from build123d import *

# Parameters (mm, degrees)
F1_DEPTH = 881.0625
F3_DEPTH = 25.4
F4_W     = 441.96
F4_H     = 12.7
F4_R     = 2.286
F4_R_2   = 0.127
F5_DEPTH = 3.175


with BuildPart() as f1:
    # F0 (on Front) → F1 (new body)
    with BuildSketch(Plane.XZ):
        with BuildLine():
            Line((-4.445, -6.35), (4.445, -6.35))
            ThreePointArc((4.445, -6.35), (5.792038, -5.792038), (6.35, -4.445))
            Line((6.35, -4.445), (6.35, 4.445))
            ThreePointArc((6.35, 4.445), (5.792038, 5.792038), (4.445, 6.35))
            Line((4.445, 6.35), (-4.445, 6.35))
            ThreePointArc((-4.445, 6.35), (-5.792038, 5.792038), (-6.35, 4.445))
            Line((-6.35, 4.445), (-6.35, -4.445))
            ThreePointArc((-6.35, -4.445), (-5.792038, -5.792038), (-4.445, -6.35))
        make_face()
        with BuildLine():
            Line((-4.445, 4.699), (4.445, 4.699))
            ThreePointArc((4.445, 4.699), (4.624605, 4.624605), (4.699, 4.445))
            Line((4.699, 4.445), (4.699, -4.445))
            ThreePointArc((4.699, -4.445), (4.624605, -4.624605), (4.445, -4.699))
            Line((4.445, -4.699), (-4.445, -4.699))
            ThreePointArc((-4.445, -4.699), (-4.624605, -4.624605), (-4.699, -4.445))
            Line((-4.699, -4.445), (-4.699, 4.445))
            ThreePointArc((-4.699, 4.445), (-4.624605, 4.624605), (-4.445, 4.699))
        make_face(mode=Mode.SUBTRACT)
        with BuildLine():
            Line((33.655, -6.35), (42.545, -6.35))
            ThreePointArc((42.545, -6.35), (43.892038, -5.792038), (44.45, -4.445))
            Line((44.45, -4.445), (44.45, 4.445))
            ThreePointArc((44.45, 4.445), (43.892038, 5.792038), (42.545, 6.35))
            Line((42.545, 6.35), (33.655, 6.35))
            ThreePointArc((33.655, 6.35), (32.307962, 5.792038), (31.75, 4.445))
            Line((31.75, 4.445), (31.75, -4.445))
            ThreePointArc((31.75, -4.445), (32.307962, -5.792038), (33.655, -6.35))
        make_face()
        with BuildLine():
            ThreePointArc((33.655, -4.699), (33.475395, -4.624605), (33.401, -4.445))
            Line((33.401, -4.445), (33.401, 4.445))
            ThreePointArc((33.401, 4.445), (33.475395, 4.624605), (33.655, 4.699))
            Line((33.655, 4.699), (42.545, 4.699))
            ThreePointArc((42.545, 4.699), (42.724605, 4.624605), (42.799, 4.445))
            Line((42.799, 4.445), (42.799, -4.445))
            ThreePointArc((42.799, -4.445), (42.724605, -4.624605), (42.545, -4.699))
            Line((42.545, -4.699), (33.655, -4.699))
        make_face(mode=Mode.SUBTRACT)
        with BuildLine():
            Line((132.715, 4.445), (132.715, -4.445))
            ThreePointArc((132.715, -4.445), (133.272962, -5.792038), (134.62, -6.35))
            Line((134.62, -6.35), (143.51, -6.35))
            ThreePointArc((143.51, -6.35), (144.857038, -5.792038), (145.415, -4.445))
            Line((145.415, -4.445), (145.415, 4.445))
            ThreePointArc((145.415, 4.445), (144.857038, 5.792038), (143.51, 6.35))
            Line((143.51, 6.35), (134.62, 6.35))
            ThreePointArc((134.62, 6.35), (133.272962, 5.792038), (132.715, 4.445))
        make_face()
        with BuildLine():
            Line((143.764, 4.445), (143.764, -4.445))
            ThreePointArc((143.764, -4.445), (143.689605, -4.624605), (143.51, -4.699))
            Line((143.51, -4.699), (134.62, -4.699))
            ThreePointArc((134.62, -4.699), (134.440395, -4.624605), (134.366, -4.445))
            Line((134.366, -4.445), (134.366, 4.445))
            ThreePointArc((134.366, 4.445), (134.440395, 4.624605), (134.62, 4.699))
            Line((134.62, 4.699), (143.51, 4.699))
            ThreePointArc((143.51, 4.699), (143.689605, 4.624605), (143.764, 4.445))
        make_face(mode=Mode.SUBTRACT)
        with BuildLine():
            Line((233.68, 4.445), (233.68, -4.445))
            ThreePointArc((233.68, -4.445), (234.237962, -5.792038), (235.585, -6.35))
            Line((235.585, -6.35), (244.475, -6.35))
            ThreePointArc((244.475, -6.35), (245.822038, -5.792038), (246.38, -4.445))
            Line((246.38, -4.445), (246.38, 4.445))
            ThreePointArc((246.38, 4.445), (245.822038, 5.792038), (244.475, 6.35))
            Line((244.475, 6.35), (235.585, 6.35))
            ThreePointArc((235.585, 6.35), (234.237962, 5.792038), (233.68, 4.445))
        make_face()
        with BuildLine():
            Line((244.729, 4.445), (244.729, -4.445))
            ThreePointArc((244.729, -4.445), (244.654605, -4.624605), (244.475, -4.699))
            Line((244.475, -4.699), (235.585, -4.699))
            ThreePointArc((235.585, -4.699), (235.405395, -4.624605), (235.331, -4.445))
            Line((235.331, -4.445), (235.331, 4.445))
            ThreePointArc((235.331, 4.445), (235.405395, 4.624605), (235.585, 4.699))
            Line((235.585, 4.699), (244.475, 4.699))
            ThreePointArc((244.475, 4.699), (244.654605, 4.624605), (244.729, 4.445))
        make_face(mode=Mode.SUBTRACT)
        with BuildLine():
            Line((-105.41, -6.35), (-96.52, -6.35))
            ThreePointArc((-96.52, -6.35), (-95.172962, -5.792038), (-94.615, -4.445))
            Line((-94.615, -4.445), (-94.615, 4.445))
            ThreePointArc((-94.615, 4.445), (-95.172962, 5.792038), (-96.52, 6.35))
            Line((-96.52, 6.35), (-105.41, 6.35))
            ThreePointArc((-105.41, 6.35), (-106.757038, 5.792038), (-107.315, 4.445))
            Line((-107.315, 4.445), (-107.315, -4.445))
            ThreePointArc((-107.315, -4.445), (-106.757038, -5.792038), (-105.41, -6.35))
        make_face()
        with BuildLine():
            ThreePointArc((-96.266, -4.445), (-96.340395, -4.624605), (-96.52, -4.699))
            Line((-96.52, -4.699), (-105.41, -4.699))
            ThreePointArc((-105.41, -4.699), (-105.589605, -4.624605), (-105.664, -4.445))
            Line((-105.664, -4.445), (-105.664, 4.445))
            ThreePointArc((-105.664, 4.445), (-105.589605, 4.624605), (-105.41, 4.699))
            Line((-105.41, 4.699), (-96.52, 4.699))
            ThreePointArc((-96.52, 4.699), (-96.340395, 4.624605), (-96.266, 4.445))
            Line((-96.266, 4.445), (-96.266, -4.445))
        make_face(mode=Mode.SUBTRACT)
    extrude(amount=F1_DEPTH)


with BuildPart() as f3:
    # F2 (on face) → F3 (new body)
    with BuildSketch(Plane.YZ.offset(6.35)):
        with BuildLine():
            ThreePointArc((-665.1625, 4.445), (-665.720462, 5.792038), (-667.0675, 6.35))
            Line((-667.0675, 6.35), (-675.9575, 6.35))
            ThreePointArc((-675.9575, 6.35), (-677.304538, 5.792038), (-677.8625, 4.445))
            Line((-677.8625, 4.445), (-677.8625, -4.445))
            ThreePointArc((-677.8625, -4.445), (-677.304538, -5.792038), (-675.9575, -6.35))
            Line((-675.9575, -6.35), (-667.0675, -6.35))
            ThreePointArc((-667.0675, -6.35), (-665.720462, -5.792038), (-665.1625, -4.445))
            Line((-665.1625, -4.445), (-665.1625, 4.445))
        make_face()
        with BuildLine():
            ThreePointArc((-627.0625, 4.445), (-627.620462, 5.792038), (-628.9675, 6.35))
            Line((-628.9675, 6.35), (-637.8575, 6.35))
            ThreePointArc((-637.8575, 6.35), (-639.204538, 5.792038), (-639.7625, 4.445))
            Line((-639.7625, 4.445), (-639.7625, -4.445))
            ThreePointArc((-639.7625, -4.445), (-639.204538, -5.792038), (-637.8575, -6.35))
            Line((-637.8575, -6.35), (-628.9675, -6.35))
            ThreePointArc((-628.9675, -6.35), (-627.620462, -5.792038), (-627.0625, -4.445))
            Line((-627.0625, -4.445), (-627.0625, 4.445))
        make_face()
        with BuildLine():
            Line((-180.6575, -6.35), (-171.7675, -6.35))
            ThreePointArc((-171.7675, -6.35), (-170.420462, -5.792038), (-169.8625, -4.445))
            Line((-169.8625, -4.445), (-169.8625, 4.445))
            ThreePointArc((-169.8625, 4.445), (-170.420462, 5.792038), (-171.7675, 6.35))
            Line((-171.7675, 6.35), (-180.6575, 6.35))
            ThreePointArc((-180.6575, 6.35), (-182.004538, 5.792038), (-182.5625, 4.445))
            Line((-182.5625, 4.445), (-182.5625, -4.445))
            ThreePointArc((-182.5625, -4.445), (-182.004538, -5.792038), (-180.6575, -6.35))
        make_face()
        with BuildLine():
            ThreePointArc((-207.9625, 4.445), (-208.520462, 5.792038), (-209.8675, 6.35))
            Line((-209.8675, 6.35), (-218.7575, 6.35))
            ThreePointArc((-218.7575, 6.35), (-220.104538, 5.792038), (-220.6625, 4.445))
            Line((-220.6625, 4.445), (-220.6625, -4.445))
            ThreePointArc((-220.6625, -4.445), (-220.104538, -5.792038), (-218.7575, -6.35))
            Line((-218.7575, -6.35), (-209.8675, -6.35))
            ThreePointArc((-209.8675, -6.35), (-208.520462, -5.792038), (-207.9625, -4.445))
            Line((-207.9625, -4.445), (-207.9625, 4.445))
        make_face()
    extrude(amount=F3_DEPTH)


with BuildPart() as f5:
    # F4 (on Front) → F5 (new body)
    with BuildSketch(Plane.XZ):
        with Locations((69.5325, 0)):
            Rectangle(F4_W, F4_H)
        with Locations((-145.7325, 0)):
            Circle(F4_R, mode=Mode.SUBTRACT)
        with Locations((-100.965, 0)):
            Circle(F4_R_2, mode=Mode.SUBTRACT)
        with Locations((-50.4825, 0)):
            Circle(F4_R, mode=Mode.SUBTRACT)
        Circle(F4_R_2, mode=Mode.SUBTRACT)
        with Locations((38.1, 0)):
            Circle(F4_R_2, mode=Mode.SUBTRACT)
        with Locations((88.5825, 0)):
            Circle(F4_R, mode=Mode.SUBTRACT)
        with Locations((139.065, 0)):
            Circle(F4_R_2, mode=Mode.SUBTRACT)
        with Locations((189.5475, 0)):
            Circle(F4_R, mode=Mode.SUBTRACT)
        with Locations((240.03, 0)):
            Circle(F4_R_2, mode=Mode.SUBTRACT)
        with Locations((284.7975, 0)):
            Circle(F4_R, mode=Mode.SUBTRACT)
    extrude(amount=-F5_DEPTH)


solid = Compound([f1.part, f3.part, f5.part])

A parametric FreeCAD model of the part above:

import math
import FreeCAD as App
import Part
import Sketcher

V = App.Vector
Q = App.Units.Quantity


def add_polygon(sketch, points):
    """Adds a closed chain of lines whose ends are joined by coincident constraints."""
    first, n = sketch.GeometryCount, len(points)
    for a, b in zip(points, points[1:] + points[:1]):
        sketch.addGeometry(Part.LineSegment(App.Vector(*a, 0), App.Vector(*b, 0)), False)
    for i in range(n):
        sketch.addConstraint(Sketcher.Constraint("Coincident", first + i, 2, first + (i + 1) % n, 1))

doc = App.newDocument("Part")
body = doc.addObject("PartDesign::Body", "Body")
body.AllowCompound = True

sketch1 = body.newObject("Sketcher::SketchObject", "Sketch")
sketch1.AttachmentSupport = (doc.getObject("XZ_Plane"), [""])
sketch1.MapMode = "FlatFace"
sketch1.addGeometry([
    Part.LineSegment(V(-4.45, -6.35, 0), V(4.45, -6.35, 0)),
    Part.ArcOfCircle(Part.Circle(V(4.44, -4.44, 0), V(0, 0, 1), 1.91), math.radians(-90), math.radians(0)),
    Part.LineSegment(V(6.35, -4.45, 0), V(6.35, 4.45, 0)),
    Part.ArcOfCircle(Part.Circle(V(4.44, 4.44, 0), V(0, 0, 1), 1.91), math.radians(0), math.radians(90)),
    Part.LineSegment(V(4.45, 6.35, 0), V(-4.45, 6.35, 0)),
    Part.ArcOfCircle(Part.Circle(V(-4.44, 4.44, 0), V(0, 0, 1), 1.91), math.radians(90), math.radians(180)),
    Part.LineSegment(V(-6.35, 4.45, 0), V(-6.35, -4.45, 0)),
    Part.ArcOfCircle(Part.Circle(V(-4.44, -4.44, 0), V(0, 0, 1), 1.91), math.radians(-180), math.radians(-90)),
    Part.ArcOfCircle(Part.Circle(V(-4.44, 4.44, 0), V(0, 0, 1), 0.25), math.radians(90), math.radians(180)),
    Part.LineSegment(V(-4.45, 4.7, 0), V(4.45, 4.7, 0)),
    Part.ArcOfCircle(Part.Circle(V(4.44, 4.44, 0), V(0, 0, 1), 0.25), math.radians(0), math.radians(90)),
    Part.LineSegment(V(4.7, 4.45, 0), V(4.7, -4.45, 0)),
    Part.ArcOfCircle(Part.Circle(V(4.44, -4.44, 0), V(0, 0, 1), 0.25), math.radians(-90), math.radians(0)),
    Part.LineSegment(V(4.45, -4.7, 0), V(-4.45, -4.7, 0)),
    Part.ArcOfCircle(Part.Circle(V(-4.44, -4.44, 0), V(0, 0, 1), 0.25), math.radians(-180), math.radians(-90)),
    Part.LineSegment(V(-4.7, -4.45, 0), V(-4.7, 4.45, 0)),
    Part.LineSegment(V(33.66, -6.35, 0), V(42.55, -6.35, 0)),
    Part.ArcOfCircle(Part.Circle(V(42.54, -4.44, 0), V(0, 0, 1), 1.91), math.radians(-90), math.radians(0)),
    Part.LineSegment(V(44.45, -4.45, 0), V(44.45, 4.45, 0)),
    Part.ArcOfCircle(Part.Circle(V(42.54, 4.44, 0), V(0, 0, 1), 1.91), math.radians(0), math.radians(90)),
    Part.LineSegment(V(42.55, 6.35, 0), V(33.66, 6.35, 0)),
    Part.ArcOfCircle(Part.Circle(V(33.66, 4.44, 0), V(0, 0, 1), 1.91), math.radians(90), math.radians(180)),
    Part.LineSegment(V(31.75, 4.45, 0), V(31.75, -4.45, 0)),
    Part.ArcOfCircle(Part.Circle(V(33.66, -4.44, 0), V(0, 0, 1), 1.91), math.radians(-180), math.radians(-90)),
    Part.LineSegment(V(42.55, -4.7, 0), V(33.66, -4.7, 0)),
    Part.ArcOfCircle(Part.Circle(V(33.66, -4.44, 0), V(0, 0, 1), 0.25), math.radians(-180), math.radians(-90)),
    Part.LineSegment(V(33.4, -4.45, 0), V(33.4, 4.45, 0)),
    Part.ArcOfCircle(Part.Circle(V(33.66, 4.44, 0), V(0, 0, 1), 0.25), math.radians(90), math.radians(180)),
    Part.LineSegment(V(33.66, 4.7, 0), V(42.55, 4.7, 0)),
    Part.ArcOfCircle(Part.Circle(V(42.54, 4.44, 0), V(0, 0, 1), 0.25), math.radians(0), math.radians(90)),
    Part.LineSegment(V(42.8, 4.45, 0), V(42.8, -4.45, 0)),
    Part.ArcOfCircle(Part.Circle(V(42.54, -4.44, 0), V(0, 0, 1), 0.25), math.radians(-90), math.radians(0)),
    Part.LineSegment(V(132.72, 4.45, 0), V(132.72, -4.45, 0)),
    Part.ArcOfCircle(Part.Circle(V(134.62, -4.44, 0), V(0, 0, 1), 1.91), math.radians(-180), math.radians(-90)),
    Part.LineSegment(V(134.62, -6.35, 0), V(143.51, -6.35, 0)),
    Part.ArcOfCircle(Part.Circle(V(143.51, -4.44, 0), V(0, 0, 1), 1.91), math.radians(-90), math.radians(0)),
    Part.LineSegment(V(145.41, -4.45, 0), V(145.41, 4.45, 0)),
    Part.ArcOfCircle(Part.Circle(V(143.51, 4.44, 0), V(0, 0, 1), 1.91), math.radians(0), math.radians(90)),
    Part.LineSegment(V(143.51, 6.35, 0), V(134.62, 6.35, 0)),
    Part.ArcOfCircle(Part.Circle(V(134.62, 4.44, 0), V(0, 0, 1), 1.91), math.radians(90), math.radians(180)),
    Part.ArcOfCircle(Part.Circle(V(143.51, 4.44, 0), V(0, 0, 1), 0.25), math.radians(0), math.radians(90)),
    Part.LineSegment(V(143.76, 4.45, 0), V(143.76, -4.45, 0)),
    Part.ArcOfCircle(Part.Circle(V(143.51, -4.44, 0), V(0, 0, 1), 0.25), math.radians(-90), math.radians(0)),
    Part.LineSegment(V(143.51, -4.7, 0), V(134.62, -4.7, 0)),
    Part.ArcOfCircle(Part.Circle(V(134.62, -4.44, 0), V(0, 0, 1), 0.25), math.radians(-180), math.radians(-90)),
    Part.LineSegment(V(134.37, -4.45, 0), V(134.37, 4.45, 0)),
    Part.ArcOfCircle(Part.Circle(V(134.62, 4.44, 0), V(0, 0, 1), 0.25), math.radians(90), math.radians(180)),
    Part.LineSegment(V(134.62, 4.7, 0), V(143.51, 4.7, 0)),
    Part.LineSegment(V(233.68, 4.45, 0), V(233.68, -4.45, 0)),
    Part.ArcOfCircle(Part.Circle(V(235.59, -4.44, 0), V(0, 0, 1), 1.91), math.radians(-180), math.radians(-90)),
    Part.LineSegment(V(235.59, -6.35, 0), V(244.47, -6.35, 0)),
    Part.ArcOfCircle(Part.Circle(V(244.47, -4.44, 0), V(0, 0, 1), 1.91), math.radians(-90), math.radians(0)),
    Part.LineSegment(V(246.38, -4.45, 0), V(246.38, 4.45, 0)),
    Part.ArcOfCircle(Part.Circle(V(244.47, 4.44, 0), V(0, 0, 1), 1.91), math.radians(0), math.radians(90)),
    Part.LineSegment(V(244.47, 6.35, 0), V(235.59, 6.35, 0)),
    Part.ArcOfCircle(Part.Circle(V(235.59, 4.44, 0), V(0, 0, 1), 1.91), math.radians(90), math.radians(180)),
    Part.ArcOfCircle(Part.Circle(V(244.47, 4.44, 0), V(0, 0, 1), 0.25), math.radians(0), math.radians(90)),
    Part.LineSegment(V(244.73, 4.45, 0), V(244.73, -4.45, 0)),
    Part.ArcOfCircle(Part.Circle(V(244.47, -4.44, 0), V(0, 0, 1), 0.25), math.radians(-90), math.radians(0)),
    Part.LineSegment(V(244.47, -4.7, 0), V(235.59, -4.7, 0)),
    Part.ArcOfCircle(Part.Circle(V(235.59, -4.44, 0), V(0, 0, 1), 0.25), math.radians(-180), math.radians(-90)),
    Part.LineSegment(V(235.33, -4.45, 0), V(235.33, 4.45, 0)),
    Part.ArcOfCircle(Part.Circle(V(235.59, 4.44, 0), V(0, 0, 1), 0.25), math.radians(90), math.radians(180)),
    Part.LineSegment(V(235.59, 4.7, 0), V(244.47, 4.7, 0)),
    Part.LineSegment(V(-105.41, -6.35, 0), V(-96.52, -6.35, 0)),
    Part.ArcOfCircle(Part.Circle(V(-96.52, -4.44, 0), V(0, 0, 1), 1.91), math.radians(-90), math.radians(0)),
    Part.LineSegment(V(-94.61, -4.45, 0), V(-94.61, 4.45, 0)),
    Part.ArcOfCircle(Part.Circle(V(-96.52, 4.44, 0), V(0, 0, 1), 1.91), math.radians(0), math.radians(90)),
    Part.LineSegment(V(-96.52, 6.35, 0), V(-105.41, 6.35, 0)),
    Part.ArcOfCircle(Part.Circle(V(-105.41, 4.44, 0), V(0, 0, 1), 1.91), math.radians(90), math.radians(180)),
    Part.LineSegment(V(-107.31, 4.45, 0), V(-107.31, -4.45, 0)),
    Part.ArcOfCircle(Part.Circle(V(-105.41, -4.44, 0), V(0, 0, 1), 1.91), math.radians(-180), math.radians(-90)),
    Part.LineSegment(V(-96.27, 4.45, 0), V(-96.27, -4.45, 0)),
    Part.ArcOfCircle(Part.Circle(V(-96.52, -4.44, 0), V(0, 0, 1), 0.25), math.radians(-90), math.radians(0)),
    Part.LineSegment(V(-96.52, -4.7, 0), V(-105.41, -4.7, 0)),
    Part.ArcOfCircle(Part.Circle(V(-105.41, -4.44, 0), V(0, 0, 1), 0.25), math.radians(-180), math.radians(-90)),
    Part.LineSegment(V(-105.66, -4.45, 0), V(-105.66, 4.45, 0)),
    Part.ArcOfCircle(Part.Circle(V(-105.41, 4.44, 0), V(0, 0, 1), 0.25), math.radians(90), math.radians(180)),
    Part.LineSegment(V(-105.41, 4.7, 0), V(-96.52, 4.7, 0)),
    Part.ArcOfCircle(Part.Circle(V(-96.52, 4.44, 0), V(0, 0, 1), 0.25), math.radians(0), math.radians(90)),
], False)
sketch1.addConstraint([
    Sketcher.Constraint("Tangent", 0, 2, 1, 1),
    Sketcher.Constraint("Tangent", 1, 2, 2, 1),
    Sketcher.Constraint("Tangent", 2, 2, 3, 1),
    Sketcher.Constraint("Tangent", 3, 2, 4, 1),
    Sketcher.Constraint("Tangent", 4, 2, 5, 1),
    Sketcher.Constraint("Tangent", 5, 2, 6, 1),
    Sketcher.Constraint("Tangent", 6, 2, 7, 1),
    Sketcher.Constraint("Tangent", 7, 2, 0, 1),
    Sketcher.Constraint("Tangent", 8, 1, 9, 1),
    Sketcher.Constraint("Tangent", 9, 2, 10, 2),
    Sketcher.Constraint("Tangent", 10, 1, 11, 1),
    Sketcher.Constraint("Tangent", 11, 2, 12, 2),
    Sketcher.Constraint("Tangent", 12, 1, 13, 1),
    Sketcher.Constraint("Tangent", 13, 2, 14, 2),
    Sketcher.Constraint("Tangent", 14, 1, 15, 1),
    Sketcher.Constraint("Tangent", 15, 2, 8, 2),
    Sketcher.Constraint("Tangent", 16, 2, 17, 1),
    Sketcher.Constraint("Tangent", 17, 2, 18, 1),
    Sketcher.Constraint("Tangent", 18, 2, 19, 1),
    Sketcher.Constraint("Tangent", 19, 2, 20, 1),
    Sketcher.Constraint("Tangent", 20, 2, 21, 1),
    Sketcher.Constraint("Tangent", 21, 2, 22, 1),
    Sketcher.Constraint("Tangent", 22, 2, 23, 1),
    Sketcher.Constraint("Tangent", 23, 2, 16, 1),
    Sketcher.Constraint("Tangent", 24, 2, 25, 2),
    Sketcher.Constraint("Tangent", 25, 1, 26, 1),
    Sketcher.Constraint("Tangent", 26, 2, 27, 2),
    Sketcher.Constraint("Tangent", 27, 1, 28, 1),
    Sketcher.Constraint("Tangent", 28, 2, 29, 2),
    Sketcher.Constraint("Tangent", 29, 1, 30, 1),
    Sketcher.Constraint("Tangent", 30, 2, 31, 2),
    Sketcher.Constraint("Tangent", 31, 1, 24, 1),
    Sketcher.Constraint("Tangent", 32, 2, 33, 1),
    Sketcher.Constraint("Tangent", 33, 2, 34, 1),
    Sketcher.Constraint("Tangent", 34, 2, 35, 1),
    Sketcher.Constraint("Tangent", 35, 2, 36, 1),
    Sketcher.Constraint("Tangent", 36, 2, 37, 1),
    Sketcher.Constraint("Tangent", 37, 2, 38, 1),
    Sketcher.Constraint("Tangent", 38, 2, 39, 1),
    Sketcher.Constraint("Tangent", 39, 2, 32, 1),
    Sketcher.Constraint("Tangent", 40, 1, 41, 1),
    Sketcher.Constraint("Tangent", 41, 2, 42, 2),
    Sketcher.Constraint("Tangent", 42, 1, 43, 1),
    Sketcher.Constraint("Tangent", 43, 2, 44, 2),
    Sketcher.Constraint("Tangent", 44, 1, 45, 1),
    Sketcher.Constraint("Tangent", 45, 2, 46, 2),
    Sketcher.Constraint("Tangent", 46, 1, 47, 1),
    Sketcher.Constraint("Tangent", 47, 2, 40, 2),
    Sketcher.Constraint("Tangent", 48, 2, 49, 1),
    Sketcher.Constraint("Tangent", 49, 2, 50, 1),
    Sketcher.Constraint("Tangent", 50, 2, 51, 1),
    Sketcher.Constraint("Tangent", 51, 2, 52, 1),
    Sketcher.Constraint("Tangent", 52, 2, 53, 1),
    Sketcher.Constraint("Tangent", 53, 2, 54, 1),
    Sketcher.Constraint("Tangent", 54, 2, 55, 1),
    Sketcher.Constraint("Tangent", 55, 2, 48, 1),
    Sketcher.Constraint("Tangent", 56, 1, 57, 1),
    Sketcher.Constraint("Tangent", 57, 2, 58, 2),
    Sketcher.Constraint("Tangent", 58, 1, 59, 1),
    Sketcher.Constraint("Tangent", 59, 2, 60, 2),
    Sketcher.Constraint("Tangent", 60, 1, 61, 1),
    Sketcher.Constraint("Tangent", 61, 2, 62, 2),
    Sketcher.Constraint("Tangent", 62, 1, 63, 1),
    Sketcher.Constraint("Tangent", 63, 2, 56, 2),
    Sketcher.Constraint("Tangent", 64, 2, 65, 1),
    Sketcher.Constraint("Tangent", 65, 2, 66, 1),
    Sketcher.Constraint("Tangent", 66, 2, 67, 1),
    Sketcher.Constraint("Tangent", 67, 2, 68, 1),
    Sketcher.Constraint("Tangent", 68, 2, 69, 1),
    Sketcher.Constraint("Tangent", 69, 2, 70, 1),
    Sketcher.Constraint("Tangent", 70, 2, 71, 1),
    Sketcher.Constraint("Tangent", 71, 2, 64, 1),
    Sketcher.Constraint("Tangent", 72, 2, 73, 2),
    Sketcher.Constraint("Tangent", 73, 1, 74, 1),
    Sketcher.Constraint("Tangent", 74, 2, 75, 2),
    Sketcher.Constraint("Tangent", 75, 1, 76, 1),
    Sketcher.Constraint("Tangent", 76, 2, 77, 2),
    Sketcher.Constraint("Tangent", 77, 1, 78, 1),
    Sketcher.Constraint("Tangent", 78, 2, 79, 2),
    Sketcher.Constraint("Tangent", 79, 1, 72, 1),
    Sketcher.Constraint("Horizontal", 0),
    Sketcher.Constraint("Vertical", 2),
    Sketcher.Constraint("Horizontal", 4),
    Sketcher.Constraint("Vertical", 6),
    Sketcher.Constraint("Horizontal", 9),
    Sketcher.Constraint("Vertical", 11),
    Sketcher.Constraint("Horizontal", 13),
    Sketcher.Constraint("Vertical", 15),
    Sketcher.Constraint("Horizontal", 16),
    Sketcher.Constraint("Vertical", 18),
    Sketcher.Constraint("Horizontal", 20),
    Sketcher.Constraint("Vertical", 22),
    Sketcher.Constraint("Horizontal", 24),
    Sketcher.Constraint("Vertical", 26),
    Sketcher.Constraint("Horizontal", 28),
    Sketcher.Constraint("Vertical", 30),
    Sketcher.Constraint("Vertical", 32),
    Sketcher.Constraint("Horizontal", 34),
    Sketcher.Constraint("Vertical", 36),
    Sketcher.Constraint("Horizontal", 38),
    Sketcher.Constraint("Vertical", 41),
    Sketcher.Constraint("Horizontal", 43),
    Sketcher.Constraint("Vertical", 45),
    Sketcher.Constraint("Horizontal", 47),
    Sketcher.Constraint("Vertical", 48),
    Sketcher.Constraint("Horizontal", 50),
    Sketcher.Constraint("Vertical", 52),
    Sketcher.Constraint("Horizontal", 54),
    Sketcher.Constraint("Vertical", 57),
    Sketcher.Constraint("Horizontal", 59),
    Sketcher.Constraint("Vertical", 61),
    Sketcher.Constraint("Horizontal", 63),
    Sketcher.Constraint("Horizontal", 64),
    Sketcher.Constraint("Vertical", 66),
    Sketcher.Constraint("Horizontal", 68),
    Sketcher.Constraint("Vertical", 70),
    Sketcher.Constraint("Vertical", 72),
    Sketcher.Constraint("Horizontal", 74),
    Sketcher.Constraint("Vertical", 76),
    Sketcher.Constraint("Horizontal", 78),
    Sketcher.Constraint("Coincident", 8, 3, 5, 3),
    Sketcher.Constraint("Coincident", 10, 3, 3, 3),
    Sketcher.Constraint("Coincident", 12, 3, 1, 3),
    Sketcher.Constraint("Coincident", 25, 3, 23, 3),
    Sketcher.Constraint("Coincident", 27, 3, 21, 3),
    Sketcher.Constraint("Coincident", 29, 3, 19, 3),
    Sketcher.Constraint("Coincident", 40, 3, 37, 3),
    Sketcher.Constraint("Coincident", 42, 3, 35, 3),
    Sketcher.Constraint("Coincident", 44, 3, 33, 3),
    Sketcher.Constraint("Coincident", 56, 3, 53, 3),
    Sketcher.Constraint("Coincident", 58, 3, 51, 3),
    Sketcher.Constraint("Coincident", 60, 3, 49, 3),
    Sketcher.Constraint("Coincident", 73, 3, 65, 3),
    Sketcher.Constraint("Coincident", 75, 3, 71, 3),
    Sketcher.Constraint("Coincident", 77, 3, 69, 3),
    Sketcher.Constraint("Equal", 1, 3),
    Sketcher.Constraint("Equal", 3, 5),
    Sketcher.Constraint("Equal", 5, 7),
    Sketcher.Constraint("Equal", 12, 14),
    Sketcher.Constraint("Equal", 7, 17),
    Sketcher.Constraint("Equal", 17, 19),
    Sketcher.Constraint("Equal", 19, 21),
    Sketcher.Constraint("Equal", 21, 23),
    Sketcher.Constraint("Equal", 14, 25),
    Sketcher.Constraint("Equal", 29, 31),
    Sketcher.Constraint("Equal", 23, 33),
    Sketcher.Constraint("Equal", 33, 35),
    Sketcher.Constraint("Equal", 35, 37),
    Sketcher.Constraint("Equal", 37, 39),
    Sketcher.Constraint("Equal", 31, 40),
    Sketcher.Constraint("Equal", 44, 46),
    Sketcher.Constraint("Equal", 39, 49),
    Sketcher.Constraint("Equal", 49, 51),
    Sketcher.Constraint("Equal", 51, 53),
    Sketcher.Constraint("Equal", 53, 55),
    Sketcher.Constraint("Equal", 46, 56),
    Sketcher.Constraint("Equal", 60, 62),
    Sketcher.Constraint("Equal", 55, 65),
    Sketcher.Constraint("Equal", 65, 67),
    Sketcher.Constraint("Equal", 67, 69),
    Sketcher.Constraint("Equal", 69, 71),
    Sketcher.Constraint("Equal", 62, 73),
    Sketcher.Constraint("Equal", 77, 79),
    Sketcher.Constraint("Symmetric", 1, 3, 5, 3, -1, 1),
    Sketcher.Constraint("Horizontal", 14, 3, 17, 3),
    Sketcher.Constraint("Horizontal", 10, 3, 19, 3),
    Sketcher.Constraint("Horizontal", 31, 3, 33, 3),
    Sketcher.Constraint("Horizontal", 29, 3, 37, 3),
    Sketcher.Constraint("Horizontal", 44, 3, 49, 3),
    Sketcher.Constraint("Horizontal", 46, 3, 53, 3),
    Sketcher.Constraint("Horizontal", 60, 3, 65, 3),
    Sketcher.Constraint("Horizontal", 62, 3, 67, 3),
    Sketcher.Constraint("Equal", 13, 16),
    Sketcher.Constraint("Equal", 28, 34),
    Sketcher.Constraint("Equal", 47, 50),
    Sketcher.Constraint("Equal", 63, 64),
    Sketcher.Constraint("Equal", 78, 2),
    Sketcher.Constraint("Radius", 8, Q("0.01 in")),
    Sketcher.Constraint("Radius", 1, Q("0.0750001 in")),
    Sketcher.Constraint("DistanceX", 0, 1, 0, 2, Q("0.35 in")),
    Sketcher.Constraint("DistanceX", -1, 1, 33, 3, Q("5.3000001 in")),
    Sketcher.Constraint("DistanceX", 65, 3, -1, 1, Q("3.8000001 in")),
    Sketcher.Constraint("DistanceX", -1, 1, 48, 2, Q("9.2 in")),
    Sketcher.Constraint("DistanceX", -1, 1, 17, 2, Q("1.75 in")),
])
pad1 = body.newObject("PartDesign::Pad", "Pad")
pad1.Profile = sketch1
pad1.Length = Q("34.6875 in")
body2 = doc.addObject("PartDesign::Body", "Body001")
body2.AllowCompound = True

sketch2 = body2.newObject("Sketcher::SketchObject", "Sketch001")
sketch2.AttachmentSupport = (doc.getObject("YZ_Plane001"), [""])
sketch2.MapMode = "FlatFace"
sketch2.AttachmentOffset = App.Placement(V(0, 0, 0.25 * 25.4), App.Rotation())
sketch2.addGeometry([
    Part.ArcOfCircle(Part.Circle(V(-667.1, 4.4, 0), V(0, 0, 1), 1.9), math.radians(0), math.radians(90)),
    Part.LineSegment(V(-667.1, 6.3, 0), V(-676, 6.3, 0)),
    Part.ArcOfCircle(Part.Circle(V(-676, 4.4, 0), V(0, 0, 1), 1.9), math.radians(90), math.radians(180)),
    Part.LineSegment(V(-677.9, 4.4, 0), V(-677.9, -4.4, 0)),
    Part.ArcOfCircle(Part.Circle(V(-676, -4.4, 0), V(0, 0, 1), 1.9), math.radians(-180), math.radians(-90)),
    Part.LineSegment(V(-676, -6.3, 0), V(-667.1, -6.3, 0)),
    Part.ArcOfCircle(Part.Circle(V(-667.1, -4.4, 0), V(0, 0, 1), 1.9), math.radians(-90), math.radians(0)),
    Part.LineSegment(V(-665.2, -4.4, 0), V(-665.2, 4.4, 0)),
    Part.ArcOfCircle(Part.Circle(V(-629, 4.4, 0), V(0, 0, 1), 1.9), math.radians(0), math.radians(90)),
    Part.LineSegment(V(-629, 6.3, 0), V(-637.9, 6.3, 0)),
    Part.ArcOfCircle(Part.Circle(V(-637.9, 4.4, 0), V(0, 0, 1), 1.9), math.radians(90), math.radians(180)),
    Part.LineSegment(V(-639.8, 4.4, 0), V(-639.8, -4.4, 0)),
    Part.ArcOfCircle(Part.Circle(V(-637.9, -4.4, 0), V(0, 0, 1), 1.9), math.radians(-180), math.radians(-90)),
    Part.LineSegment(V(-637.9, -6.3, 0), V(-629, -6.3, 0)),
    Part.ArcOfCircle(Part.Circle(V(-629, -4.4, 0), V(0, 0, 1), 1.9), math.radians(-90), math.radians(0)),
    Part.LineSegment(V(-627.1, -4.4, 0), V(-627.1, 4.4, 0)),
    Part.LineSegment(V(-180.7, -6.3, 0), V(-171.8, -6.3, 0)),
    Part.ArcOfCircle(Part.Circle(V(-171.8, -4.4, 0), V(0, 0, 1), 1.9), math.radians(-90), math.radians(0)),
    Part.LineSegment(V(-169.9, -4.4, 0), V(-169.9, 4.4, 0)),
    Part.ArcOfCircle(Part.Circle(V(-171.8, 4.4, 0), V(0, 0, 1), 1.9), math.radians(0), math.radians(90)),
    Part.LineSegment(V(-171.8, 6.3, 0), V(-180.7, 6.3, 0)),
    Part.ArcOfCircle(Part.Circle(V(-180.7, 4.4, 0), V(0, 0, 1), 1.9), math.radians(90), math.radians(180)),
    Part.LineSegment(V(-182.6, 4.4, 0), V(-182.6, -4.4, 0)),
    Part.ArcOfCircle(Part.Circle(V(-180.7, -4.4, 0), V(0, 0, 1), 1.9), math.radians(-180), math.radians(-90)),
    Part.ArcOfCircle(Part.Circle(V(-209.9, 4.4, 0), V(0, 0, 1), 1.9), math.radians(0), math.radians(90)),
    Part.LineSegment(V(-209.9, 6.3, 0), V(-218.8, 6.3, 0)),
    Part.ArcOfCircle(Part.Circle(V(-218.8, 4.4, 0), V(0, 0, 1), 1.9), math.radians(90), math.radians(180)),
    Part.LineSegment(V(-220.7, 4.4, 0), V(-220.7, -4.4, 0)),
    Part.ArcOfCircle(Part.Circle(V(-218.8, -4.4, 0), V(0, 0, 1), 1.9), math.radians(-180), math.radians(-90)),
    Part.LineSegment(V(-218.8, -6.3, 0), V(-209.9, -6.3, 0)),
    Part.ArcOfCircle(Part.Circle(V(-209.9, -4.4, 0), V(0, 0, 1), 1.9), math.radians(-90), math.radians(0)),
    Part.LineSegment(V(-208, -4.4, 0), V(-208, 4.4, 0)),
], False)
sketch2.addConstraint([
    Sketcher.Constraint("Tangent", 0, 2, 1, 1),
    Sketcher.Constraint("Tangent", 1, 2, 2, 1),
    Sketcher.Constraint("Tangent", 2, 2, 3, 1),
    Sketcher.Constraint("Tangent", 3, 2, 4, 1),
    Sketcher.Constraint("Tangent", 4, 2, 5, 1),
    Sketcher.Constraint("Tangent", 5, 2, 6, 1),
    Sketcher.Constraint("Tangent", 6, 2, 7, 1),
    Sketcher.Constraint("Tangent", 7, 2, 0, 1),
    Sketcher.Constraint("Tangent", 8, 2, 9, 1),
    Sketcher.Constraint("Tangent", 9, 2, 10, 1),
    Sketcher.Constraint("Tangent", 10, 2, 11, 1),
    Sketcher.Constraint("Tangent", 11, 2, 12, 1),
    Sketcher.Constraint("Tangent", 12, 2, 13, 1),
    Sketcher.Constraint("Tangent", 13, 2, 14, 1),
    Sketcher.Constraint("Tangent", 14, 2, 15, 1),
    Sketcher.Constraint("Tangent", 15, 2, 8, 1),
    Sketcher.Constraint("Tangent", 16, 2, 17, 1),
    Sketcher.Constraint("Tangent", 17, 2, 18, 1),
    Sketcher.Constraint("Tangent", 18, 2, 19, 1),
    Sketcher.Constraint("Tangent", 19, 2, 20, 1),
    Sketcher.Constraint("Tangent", 20, 2, 21, 1),
    Sketcher.Constraint("Tangent", 21, 2, 22, 1),
    Sketcher.Constraint("Tangent", 22, 2, 23, 1),
    Sketcher.Constraint("Tangent", 23, 2, 16, 1),
    Sketcher.Constraint("Tangent", 24, 2, 25, 1),
    Sketcher.Constraint("Tangent", 25, 2, 26, 1),
    Sketcher.Constraint("Tangent", 26, 2, 27, 1),
    Sketcher.Constraint("Tangent", 27, 2, 28, 1),
    Sketcher.Constraint("Tangent", 28, 2, 29, 1),
    Sketcher.Constraint("Tangent", 29, 2, 30, 1),
    Sketcher.Constraint("Tangent", 30, 2, 31, 1),
    Sketcher.Constraint("Tangent", 31, 2, 24, 1),
    Sketcher.Constraint("Horizontal", 1),
    Sketcher.Constraint("Vertical", 3),
    Sketcher.Constraint("Horizontal", 5),
    Sketcher.Constraint("Vertical", 7),
    Sketcher.Constraint("Horizontal", 9),
    Sketcher.Constraint("Vertical", 11),
    Sketcher.Constraint("Horizontal", 13),
    Sketcher.Constraint("Vertical", 15),
    Sketcher.Constraint("Horizontal", 16),
    Sketcher.Constraint("Vertical", 18),
    Sketcher.Constraint("Horizontal", 20),
    Sketcher.Constraint("Vertical", 22),
    Sketcher.Constraint("Horizontal", 25),
    Sketcher.Constraint("Vertical", 27),
    Sketcher.Constraint("Horizontal", 29),
    Sketcher.Constraint("Vertical", 31),
    Sketcher.Constraint("Equal", 0, 2),
    Sketcher.Constraint("Equal", 2, 4),
    Sketcher.Constraint("Equal", 4, 6),
    Sketcher.Constraint("Equal", 6, 8),
    Sketcher.Constraint("Equal", 8, 10),
    Sketcher.Constraint("Equal", 10, 12),
    Sketcher.Constraint("Equal", 12, 14),
    Sketcher.Constraint("Equal", 14, 17),
    Sketcher.Constraint("Equal", 17, 19),
    Sketcher.Constraint("Equal", 19, 21),
    Sketcher.Constraint("Equal", 21, 23),
    Sketcher.Constraint("Equal", 23, 24),
    Sketcher.Constraint("Equal", 24, 26),
    Sketcher.Constraint("Equal", 26, 28),
    Sketcher.Constraint("Equal", 28, 30),
    Sketcher.Constraint("Horizontal", 2, 3, 8, 3),
    Sketcher.Constraint("Horizontal", 6, 3, 12, 3),
    Sketcher.Constraint("Horizontal", 14, 3, 17, 3),
    Sketcher.Constraint("Horizontal", 10, 3, 19, 3),
    Sketcher.Constraint("Horizontal", 21, 3, 24, 3),
    Sketcher.Constraint("Horizontal", 23, 3, 28, 3),
    Sketcher.Constraint("Equal", 5, 9),
    Sketcher.Constraint("Equal", 13, 16),
    Sketcher.Constraint("Equal", 20, 25),
    Sketcher.Constraint("Equal", 29, 3),
    Sketcher.Constraint("Radius", 0, Q("0.0750001 in")),
    Sketcher.Constraint("DistanceX", 14, 3, 17, 3, Q("18 in")),
    Sketcher.Constraint("DistanceX", 1, 2, 1, 1, Q("0.35 in")),
    Sketcher.Constraint("DistanceX", 0, 3, 8, 3, Q("1.5 in")),
    Sketcher.Constraint("DistanceX", 24, 3, 19, 3, Q("1.5 in")),
    Sketcher.Constraint("DistanceY", -1, 1, 0, 2, Q("0.25 in")),
    Sketcher.Constraint("DistanceX", 2, 2, -1, 1, Q("26.6875 in")),
])
pad2 = body2.newObject("PartDesign::Pad", "Pad001")
pad2.Profile = sketch2
pad2.Length = Q("1 in")
body3 = doc.addObject("PartDesign::Body", "Body002")

sketch3 = body3.newObject("Sketcher::SketchObject", "Sketch002")
sketch3.AttachmentSupport = (doc.getObject("XZ_Plane002"), [""])
sketch3.MapMode = "FlatFace"
add_polygon(sketch3, [(-151.45, 6.35), (-151.45, -6.35), (290.51, -6.35), (290.51, 6.35)])
sketch3.addGeometry(Part.Circle(V(-145.73, 0, 0), V(0, 0, 1), 2.29), False)
sketch3.addGeometry(Part.Circle(V(-100.97, 0, 0), V(0, 0, 1), 0.13), False)
sketch3.addGeometry(Part.Circle(V(-50.48, 0, 0), V(0, 0, 1), 2.29), False)
sketch3.addGeometry(Part.Circle(V(0, 0, 0), V(0, 0, 1), 0.13), False)
sketch3.addGeometry(Part.Circle(V(38.1, 0, 0), V(0, 0, 1), 0.13), False)
sketch3.addGeometry(Part.Circle(V(88.58, 0, 0), V(0, 0, 1), 2.29), False)
sketch3.addGeometry(Part.Circle(V(139.06, 0, 0), V(0, 0, 1), 0.13), False)
sketch3.addGeometry(Part.Circle(V(189.55, 0, 0), V(0, 0, 1), 2.29), False)
sketch3.addGeometry(Part.Circle(V(240.03, 0, 0), V(0, 0, 1), 0.13), False)
sketch3.addGeometry(Part.Circle(V(284.8, 0, 0), V(0, 0, 1), 2.29), False)
sketch3.addConstraint([
    Sketcher.Constraint("Vertical", 0),
    Sketcher.Constraint("Horizontal", 1),
    Sketcher.Constraint("Vertical", 2),
    Sketcher.Constraint("Horizontal", 3),
    Sketcher.Constraint("Coincident", 7, 3, -1, 1),
    Sketcher.Constraint("Equal", 4, 6),
    Sketcher.Constraint("Equal", 5, 7),
    Sketcher.Constraint("Equal", 7, 8),
    Sketcher.Constraint("Equal", 6, 9),
    Sketcher.Constraint("Equal", 8, 10),
    Sketcher.Constraint("Equal", 9, 11),
    Sketcher.Constraint("Equal", 10, 12),
    Sketcher.Constraint("Equal", 11, 13),
    Sketcher.Constraint("PointOnObject", 4, 3, -1),
    Sketcher.Constraint("PointOnObject", 5, 3, -1),
    Sketcher.Constraint("PointOnObject", 6, 3, -1),
    Sketcher.Constraint("PointOnObject", 8, 3, -1),
    Sketcher.Constraint("PointOnObject", 9, 3, -1),
    Sketcher.Constraint("PointOnObject", 10, 3, -1),
    Sketcher.Constraint("PointOnObject", 11, 3, -1),
    Sketcher.Constraint("PointOnObject", 12, 3, -1),
    Sketcher.Constraint("PointOnObject", 13, 3, -1),
    Sketcher.Constraint("Diameter", 4, Q("0.18 in")),
    Sketcher.Constraint("Diameter", 5, Q("0.01 in")),
    Sketcher.Constraint("DistanceX", 1, 1, 1, 2, Q("17.4 in")),
    Sketcher.Constraint("DistanceY", 0, 2, 0, 1, Q("0.5 in")),
    Sketcher.Constraint("DistanceX", -1, 1, 8, 3, Q("1.5 in")),
    Sketcher.Constraint("DistanceX", -1, 1, 12, 3, Q("9.45 in")),
    Sketcher.Constraint("DistanceY", 0, 2, -1, 1, Q("0.25 in")),
    Sketcher.Constraint("DistanceX", 4, 3, 6, 3, Q("3.75 in")),
    Sketcher.Constraint("DistanceX", 5, 3, 10, 3, Q("9.45 in")),
    Sketcher.Constraint("DistanceX", 6, 3, 11, 3, Q("9.45 in")),
    Sketcher.Constraint("DistanceX", 11, 3, 13, 3, Q("3.75 in")),
    Sketcher.Constraint("DistanceX", 9, 3, 1, 2, Q("7.95 in")),
    Sketcher.Constraint("DistanceX", 5, 3, -1, 1, Q("3.975 in")),
    Sketcher.Constraint("DistanceX", -1, 1, 1, 2, Q("11.4375 in")),
    Sketcher.Constraint("DistanceX", 6, 3, 9, 3, Q("5.475 in")),
])
pad3 = body3.newObject("PartDesign::Pad", "Pad002")
pad3.Profile = sketch3
pad3.Length = Q("0.125 in")
pad3.Reversed = True

doc.recompute()
